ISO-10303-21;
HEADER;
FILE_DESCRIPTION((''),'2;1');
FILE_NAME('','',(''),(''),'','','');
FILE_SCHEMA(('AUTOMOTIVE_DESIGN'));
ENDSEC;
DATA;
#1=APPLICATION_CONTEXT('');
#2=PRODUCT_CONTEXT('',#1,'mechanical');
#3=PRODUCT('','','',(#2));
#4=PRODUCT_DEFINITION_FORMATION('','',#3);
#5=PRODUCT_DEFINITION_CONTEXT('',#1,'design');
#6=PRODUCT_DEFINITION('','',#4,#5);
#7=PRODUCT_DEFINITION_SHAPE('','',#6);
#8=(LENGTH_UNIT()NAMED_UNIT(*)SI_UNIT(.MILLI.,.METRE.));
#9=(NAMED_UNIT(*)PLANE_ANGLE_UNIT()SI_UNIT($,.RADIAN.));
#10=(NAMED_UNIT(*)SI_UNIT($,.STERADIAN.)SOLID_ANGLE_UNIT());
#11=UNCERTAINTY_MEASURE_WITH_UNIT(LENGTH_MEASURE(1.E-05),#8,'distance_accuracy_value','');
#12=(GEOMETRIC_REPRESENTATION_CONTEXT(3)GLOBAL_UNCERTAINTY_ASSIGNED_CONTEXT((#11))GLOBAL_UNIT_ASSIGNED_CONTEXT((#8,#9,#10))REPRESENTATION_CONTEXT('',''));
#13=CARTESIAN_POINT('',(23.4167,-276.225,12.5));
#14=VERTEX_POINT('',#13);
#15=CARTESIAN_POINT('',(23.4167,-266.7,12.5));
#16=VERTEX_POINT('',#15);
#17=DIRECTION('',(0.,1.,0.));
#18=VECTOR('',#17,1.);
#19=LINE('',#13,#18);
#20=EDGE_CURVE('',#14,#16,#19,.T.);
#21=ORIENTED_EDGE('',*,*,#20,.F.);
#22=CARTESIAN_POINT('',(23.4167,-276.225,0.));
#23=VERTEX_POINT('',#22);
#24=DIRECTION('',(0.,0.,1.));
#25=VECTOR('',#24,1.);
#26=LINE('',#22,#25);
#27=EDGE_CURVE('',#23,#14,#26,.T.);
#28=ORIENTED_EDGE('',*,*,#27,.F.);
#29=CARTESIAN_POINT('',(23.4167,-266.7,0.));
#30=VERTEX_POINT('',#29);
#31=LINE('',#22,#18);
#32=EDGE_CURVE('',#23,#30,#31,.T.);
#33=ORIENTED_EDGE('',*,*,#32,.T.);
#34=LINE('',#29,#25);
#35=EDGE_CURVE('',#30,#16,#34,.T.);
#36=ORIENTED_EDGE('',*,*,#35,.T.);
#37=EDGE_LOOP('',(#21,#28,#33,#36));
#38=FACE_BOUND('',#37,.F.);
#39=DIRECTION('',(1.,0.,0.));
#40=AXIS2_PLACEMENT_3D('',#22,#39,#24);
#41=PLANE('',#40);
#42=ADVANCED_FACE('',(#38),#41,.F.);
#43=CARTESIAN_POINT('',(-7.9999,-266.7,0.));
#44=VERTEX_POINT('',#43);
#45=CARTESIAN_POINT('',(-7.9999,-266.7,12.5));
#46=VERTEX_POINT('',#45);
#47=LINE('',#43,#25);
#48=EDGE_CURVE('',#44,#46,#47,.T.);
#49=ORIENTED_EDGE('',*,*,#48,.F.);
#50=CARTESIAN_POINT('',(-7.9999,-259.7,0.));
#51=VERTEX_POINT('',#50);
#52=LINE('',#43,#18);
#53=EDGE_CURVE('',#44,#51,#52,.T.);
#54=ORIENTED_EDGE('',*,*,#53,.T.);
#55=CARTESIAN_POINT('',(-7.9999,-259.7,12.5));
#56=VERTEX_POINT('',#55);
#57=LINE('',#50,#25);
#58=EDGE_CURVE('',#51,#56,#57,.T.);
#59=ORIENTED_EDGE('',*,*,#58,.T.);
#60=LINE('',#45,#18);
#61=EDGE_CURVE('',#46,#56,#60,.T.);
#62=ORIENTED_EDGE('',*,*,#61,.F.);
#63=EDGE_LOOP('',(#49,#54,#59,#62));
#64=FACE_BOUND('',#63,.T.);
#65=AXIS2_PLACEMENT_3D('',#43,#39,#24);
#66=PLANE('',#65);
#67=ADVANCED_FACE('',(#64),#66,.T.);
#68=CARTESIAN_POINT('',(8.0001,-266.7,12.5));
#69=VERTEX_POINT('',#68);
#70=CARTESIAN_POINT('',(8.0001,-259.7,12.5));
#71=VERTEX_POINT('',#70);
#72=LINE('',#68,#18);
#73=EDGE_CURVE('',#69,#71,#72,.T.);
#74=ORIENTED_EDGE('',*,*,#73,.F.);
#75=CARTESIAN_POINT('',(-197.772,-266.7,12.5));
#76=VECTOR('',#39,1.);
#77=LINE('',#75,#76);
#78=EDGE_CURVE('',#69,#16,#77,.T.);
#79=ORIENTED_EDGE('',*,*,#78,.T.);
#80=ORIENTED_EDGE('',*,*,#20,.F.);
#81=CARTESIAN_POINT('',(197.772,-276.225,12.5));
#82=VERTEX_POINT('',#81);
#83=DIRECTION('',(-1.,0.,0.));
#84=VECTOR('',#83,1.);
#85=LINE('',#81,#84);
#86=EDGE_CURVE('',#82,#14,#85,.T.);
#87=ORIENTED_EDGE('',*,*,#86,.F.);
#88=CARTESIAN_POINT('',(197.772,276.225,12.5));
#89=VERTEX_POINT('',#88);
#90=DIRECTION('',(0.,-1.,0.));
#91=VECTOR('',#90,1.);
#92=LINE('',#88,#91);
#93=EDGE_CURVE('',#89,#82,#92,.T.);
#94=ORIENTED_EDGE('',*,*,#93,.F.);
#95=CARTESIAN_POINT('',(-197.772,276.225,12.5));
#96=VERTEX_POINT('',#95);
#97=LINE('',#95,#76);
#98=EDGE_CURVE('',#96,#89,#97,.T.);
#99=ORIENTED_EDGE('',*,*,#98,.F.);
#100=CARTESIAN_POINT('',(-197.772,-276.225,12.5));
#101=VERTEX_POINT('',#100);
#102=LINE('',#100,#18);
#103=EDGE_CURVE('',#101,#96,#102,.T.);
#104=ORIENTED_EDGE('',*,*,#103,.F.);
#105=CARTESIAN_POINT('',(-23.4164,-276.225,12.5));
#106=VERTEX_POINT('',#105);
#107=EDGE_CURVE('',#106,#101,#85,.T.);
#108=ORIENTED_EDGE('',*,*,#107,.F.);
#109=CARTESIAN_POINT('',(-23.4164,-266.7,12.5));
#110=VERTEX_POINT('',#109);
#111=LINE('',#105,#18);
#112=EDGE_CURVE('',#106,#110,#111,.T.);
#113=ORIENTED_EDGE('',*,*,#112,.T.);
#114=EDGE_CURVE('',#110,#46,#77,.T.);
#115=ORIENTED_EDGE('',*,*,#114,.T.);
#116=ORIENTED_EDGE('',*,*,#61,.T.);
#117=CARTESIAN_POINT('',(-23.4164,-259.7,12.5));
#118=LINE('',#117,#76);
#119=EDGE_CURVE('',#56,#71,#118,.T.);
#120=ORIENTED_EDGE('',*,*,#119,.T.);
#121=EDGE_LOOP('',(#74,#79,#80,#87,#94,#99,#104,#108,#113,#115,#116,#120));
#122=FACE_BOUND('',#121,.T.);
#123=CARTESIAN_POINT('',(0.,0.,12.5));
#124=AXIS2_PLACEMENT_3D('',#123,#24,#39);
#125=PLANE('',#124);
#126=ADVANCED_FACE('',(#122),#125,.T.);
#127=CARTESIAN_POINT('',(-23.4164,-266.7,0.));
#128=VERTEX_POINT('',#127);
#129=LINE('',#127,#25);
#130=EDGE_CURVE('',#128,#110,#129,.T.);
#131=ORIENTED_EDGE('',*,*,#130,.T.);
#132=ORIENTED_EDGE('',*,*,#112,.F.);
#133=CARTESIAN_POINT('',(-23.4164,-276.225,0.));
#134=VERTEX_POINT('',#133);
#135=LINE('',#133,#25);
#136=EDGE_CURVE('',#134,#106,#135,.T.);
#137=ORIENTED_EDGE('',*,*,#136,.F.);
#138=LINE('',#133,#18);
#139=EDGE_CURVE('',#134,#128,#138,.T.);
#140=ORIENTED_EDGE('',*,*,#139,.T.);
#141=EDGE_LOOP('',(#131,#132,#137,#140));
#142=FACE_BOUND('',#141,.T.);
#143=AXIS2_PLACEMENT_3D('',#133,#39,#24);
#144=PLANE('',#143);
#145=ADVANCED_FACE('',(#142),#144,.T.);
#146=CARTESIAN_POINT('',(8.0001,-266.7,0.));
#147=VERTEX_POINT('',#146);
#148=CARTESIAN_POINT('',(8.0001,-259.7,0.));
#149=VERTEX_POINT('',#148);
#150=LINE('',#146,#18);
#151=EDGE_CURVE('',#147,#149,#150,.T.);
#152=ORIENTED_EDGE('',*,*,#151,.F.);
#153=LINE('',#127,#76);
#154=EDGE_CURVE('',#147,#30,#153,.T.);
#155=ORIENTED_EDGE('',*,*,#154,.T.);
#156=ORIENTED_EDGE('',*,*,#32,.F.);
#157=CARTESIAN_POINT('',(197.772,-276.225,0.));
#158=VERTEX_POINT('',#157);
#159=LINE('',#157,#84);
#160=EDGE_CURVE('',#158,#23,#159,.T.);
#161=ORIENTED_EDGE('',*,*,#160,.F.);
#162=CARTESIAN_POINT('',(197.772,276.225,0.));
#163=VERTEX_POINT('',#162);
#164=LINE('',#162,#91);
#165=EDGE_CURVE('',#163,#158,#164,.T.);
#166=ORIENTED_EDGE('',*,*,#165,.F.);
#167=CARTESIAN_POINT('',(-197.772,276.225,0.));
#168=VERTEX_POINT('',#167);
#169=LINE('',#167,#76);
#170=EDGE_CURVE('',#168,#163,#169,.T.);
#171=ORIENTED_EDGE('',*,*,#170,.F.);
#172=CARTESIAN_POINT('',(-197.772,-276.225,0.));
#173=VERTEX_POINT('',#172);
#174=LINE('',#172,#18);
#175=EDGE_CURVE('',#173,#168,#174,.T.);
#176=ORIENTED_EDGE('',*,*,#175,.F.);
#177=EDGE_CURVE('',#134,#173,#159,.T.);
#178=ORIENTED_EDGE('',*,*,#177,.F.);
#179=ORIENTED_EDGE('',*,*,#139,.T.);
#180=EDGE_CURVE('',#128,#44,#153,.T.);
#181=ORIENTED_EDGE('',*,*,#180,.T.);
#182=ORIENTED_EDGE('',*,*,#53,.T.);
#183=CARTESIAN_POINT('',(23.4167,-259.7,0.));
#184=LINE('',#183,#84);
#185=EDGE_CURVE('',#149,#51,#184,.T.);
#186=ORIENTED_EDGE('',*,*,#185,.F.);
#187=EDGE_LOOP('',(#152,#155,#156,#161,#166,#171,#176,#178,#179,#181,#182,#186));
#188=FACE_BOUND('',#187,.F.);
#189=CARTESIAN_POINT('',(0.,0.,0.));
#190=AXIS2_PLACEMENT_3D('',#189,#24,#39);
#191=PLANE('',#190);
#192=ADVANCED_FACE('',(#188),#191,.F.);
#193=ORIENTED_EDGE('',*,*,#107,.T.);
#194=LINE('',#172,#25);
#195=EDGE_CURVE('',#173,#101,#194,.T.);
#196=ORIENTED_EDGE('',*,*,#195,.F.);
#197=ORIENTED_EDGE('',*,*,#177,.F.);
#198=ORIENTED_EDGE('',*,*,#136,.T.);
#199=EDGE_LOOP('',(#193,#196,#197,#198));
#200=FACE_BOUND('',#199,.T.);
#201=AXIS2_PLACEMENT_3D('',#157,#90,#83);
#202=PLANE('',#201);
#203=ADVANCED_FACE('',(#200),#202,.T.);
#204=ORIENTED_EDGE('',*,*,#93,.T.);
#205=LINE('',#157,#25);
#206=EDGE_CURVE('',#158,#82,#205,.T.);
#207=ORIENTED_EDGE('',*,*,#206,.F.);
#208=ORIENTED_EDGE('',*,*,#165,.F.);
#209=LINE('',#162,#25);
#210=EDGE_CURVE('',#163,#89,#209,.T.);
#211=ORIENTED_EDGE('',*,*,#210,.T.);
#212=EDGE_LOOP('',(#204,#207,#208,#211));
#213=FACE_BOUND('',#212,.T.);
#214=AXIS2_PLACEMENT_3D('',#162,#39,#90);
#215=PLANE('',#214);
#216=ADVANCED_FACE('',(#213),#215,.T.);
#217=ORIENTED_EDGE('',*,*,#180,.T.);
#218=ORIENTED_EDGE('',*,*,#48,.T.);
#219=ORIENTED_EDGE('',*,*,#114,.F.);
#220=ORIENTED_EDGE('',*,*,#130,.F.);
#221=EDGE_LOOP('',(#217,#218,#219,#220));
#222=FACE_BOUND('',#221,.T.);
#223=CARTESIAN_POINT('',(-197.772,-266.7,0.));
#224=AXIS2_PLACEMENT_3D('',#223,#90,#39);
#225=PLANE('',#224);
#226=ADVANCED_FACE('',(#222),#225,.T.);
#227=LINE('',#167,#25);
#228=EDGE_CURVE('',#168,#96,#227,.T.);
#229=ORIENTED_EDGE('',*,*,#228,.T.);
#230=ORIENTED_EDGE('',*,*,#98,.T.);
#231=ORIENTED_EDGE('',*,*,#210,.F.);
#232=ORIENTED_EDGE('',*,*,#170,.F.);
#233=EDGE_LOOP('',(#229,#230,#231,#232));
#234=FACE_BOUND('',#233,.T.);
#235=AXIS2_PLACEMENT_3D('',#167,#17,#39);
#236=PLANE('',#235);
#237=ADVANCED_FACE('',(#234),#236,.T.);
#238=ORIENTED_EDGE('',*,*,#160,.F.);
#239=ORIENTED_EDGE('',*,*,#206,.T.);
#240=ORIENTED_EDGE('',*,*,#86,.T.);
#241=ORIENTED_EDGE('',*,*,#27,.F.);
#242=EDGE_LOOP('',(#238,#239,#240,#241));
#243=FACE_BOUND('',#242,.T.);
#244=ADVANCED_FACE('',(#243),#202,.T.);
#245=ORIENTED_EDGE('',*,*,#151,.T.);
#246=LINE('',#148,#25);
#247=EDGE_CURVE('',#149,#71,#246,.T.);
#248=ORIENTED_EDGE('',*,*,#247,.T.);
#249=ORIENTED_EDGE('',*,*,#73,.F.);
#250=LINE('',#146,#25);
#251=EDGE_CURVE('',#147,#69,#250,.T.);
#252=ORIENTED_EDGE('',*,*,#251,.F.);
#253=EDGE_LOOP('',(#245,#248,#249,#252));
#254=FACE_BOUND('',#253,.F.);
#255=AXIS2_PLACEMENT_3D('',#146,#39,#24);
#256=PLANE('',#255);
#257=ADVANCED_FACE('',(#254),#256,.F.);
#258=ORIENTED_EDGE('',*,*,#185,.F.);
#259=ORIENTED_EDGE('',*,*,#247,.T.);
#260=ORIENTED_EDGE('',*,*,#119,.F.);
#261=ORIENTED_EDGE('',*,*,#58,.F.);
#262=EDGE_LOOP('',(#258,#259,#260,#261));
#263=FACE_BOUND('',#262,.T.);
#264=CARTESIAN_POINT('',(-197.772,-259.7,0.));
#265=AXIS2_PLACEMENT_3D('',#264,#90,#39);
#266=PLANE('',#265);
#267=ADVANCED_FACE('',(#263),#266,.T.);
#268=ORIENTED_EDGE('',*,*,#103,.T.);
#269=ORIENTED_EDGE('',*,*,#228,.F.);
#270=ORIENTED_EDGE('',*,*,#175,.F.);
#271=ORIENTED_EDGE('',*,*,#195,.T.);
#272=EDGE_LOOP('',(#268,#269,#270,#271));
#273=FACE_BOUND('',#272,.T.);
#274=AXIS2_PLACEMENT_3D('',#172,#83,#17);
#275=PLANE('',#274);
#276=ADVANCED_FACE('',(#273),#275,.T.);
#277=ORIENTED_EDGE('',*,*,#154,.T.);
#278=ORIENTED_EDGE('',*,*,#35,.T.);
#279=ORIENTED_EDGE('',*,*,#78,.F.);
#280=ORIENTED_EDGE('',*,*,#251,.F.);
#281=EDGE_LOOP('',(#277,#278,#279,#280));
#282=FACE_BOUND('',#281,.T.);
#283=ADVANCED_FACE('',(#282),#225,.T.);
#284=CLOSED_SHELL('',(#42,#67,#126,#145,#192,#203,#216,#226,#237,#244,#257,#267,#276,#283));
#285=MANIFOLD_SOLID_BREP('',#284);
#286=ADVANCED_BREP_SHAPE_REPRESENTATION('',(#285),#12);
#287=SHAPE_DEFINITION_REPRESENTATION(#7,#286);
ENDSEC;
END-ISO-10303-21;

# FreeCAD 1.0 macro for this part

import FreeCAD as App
import Part
import Sketcher


def add_polygon(sketch, points):
    """Adds a closed chain of lines whose ends are joined by coincident constraints."""
    first, n = sketch.GeometryCount, len(points)
    for a, b in zip(points, points[1:] + points[:1]):
        sketch.addGeometry(Part.LineSegment(App.Vector(*a, 0), App.Vector(*b, 0)), False)
    for i in range(n):
        sketch.addConstraint(Sketcher.Constraint("Coincident", first + i, 2, first + (i + 1) % n, 1))

doc = App.newDocument("Part")
body = doc.addObject("PartDesign::Body", "Body")

# Sketch on XY plane
sketch1 = body.newObject("Sketcher::SketchObject", "Sketch")
sketch1.AttachmentSupport = (doc.getObject("XY_Plane"), [""])
sketch1.MapMode = "FlatFace"
add_polygon(sketch1, [(198, 276), (-198, 276), (-198, -276), (198, -276)])  # lines 0-3
sketch1.addConstraint([
    Sketcher.Constraint("Horizontal", 0),
    Sketcher.Constraint("Vertical", 1),
    Sketcher.Constraint("Horizontal", 2),
    Sketcher.Constraint("Vertical", 3),
    Sketcher.Constraint("Symmetric", 0, 2, 2, 2, -1, 1),
    Sketcher.Constraint("DistanceY", 1, 2, 1, 1, 552.45),
    Sketcher.Constraint("DistanceX", 0, 2, 0, 1, 395.544),
])
pad1 = body.newObject("PartDesign::Pad", "Pad")
pad1.Profile = sketch1
pad1.Length = 12.5

# Sketch on XZ plane
sketch2 = body.newObject("Sketcher::SketchObject", "Sketch001")
sketch2.AttachmentSupport = (doc.getObject("XZ_Plane"), [""])
sketch2.MapMode = "FlatFace"
sketch2.AttachmentOffset = App.Placement(App.Vector(0, 0, 276.225), App.Rotation())
add_polygon(sketch2, [(23, 0), (23, 12), (-23, 12), (-23, 0)])  # lines 0-3
sketch2.addConstraint([
    Sketcher.Constraint("Vertical", 0),
    Sketcher.Constraint("Horizontal", 1),
    Sketcher.Constraint("Vertical", 2),
    Sketcher.Constraint("Horizontal", 3),
    Sketcher.Constraint("Symmetric", 2, 2, 3, 2, -1, 1),
    Sketcher.Constraint("DistanceY", 0, 1, 0, 2, 12.5),
    Sketcher.Constraint("DistanceX", 1, 2, 1, 1, 46.833),
])
pocket1 = body.newObject("PartDesign::Pocket", "Pocket")
pocket1.Profile = sketch2
pocket1.Length = 9.525

# Sketch on XZ plane
sketch3 = body.newObject("Sketcher::SketchObject", "Sketch002")
sketch3.AttachmentSupport = (doc.getObject("XZ_Plane"), [""])
sketch3.MapMode = "FlatFace"
sketch3.AttachmentOffset = App.Placement(App.Vector(0, 0, 266.7), App.Rotation())
add_polygon(sketch3, [(-8, 0), (8, 0), (8, 12), (-8, 12)])  # lines 0-3
sketch3.addConstraint([
    Sketcher.Constraint("Horizontal", 0),
    Sketcher.Constraint("Vertical", 1),
    Sketcher.Constraint("Horizontal", 2),
    Sketcher.Constraint("Vertical", 3),
    Sketcher.Constraint("Symmetric", 0, 2, 3, 2, -1, 1),
    Sketcher.Constraint("DistanceX", 0, 1, 0, 2, 16.0),
    Sketcher.Constraint("DistanceY", 1, 1, 1, 2, 12.5),
])
pocket2 = body.newObject("PartDesign::Pocket", "Pocket001")
pocket2.Profile = sketch3
pocket2.Length = 7

doc.recompute()
